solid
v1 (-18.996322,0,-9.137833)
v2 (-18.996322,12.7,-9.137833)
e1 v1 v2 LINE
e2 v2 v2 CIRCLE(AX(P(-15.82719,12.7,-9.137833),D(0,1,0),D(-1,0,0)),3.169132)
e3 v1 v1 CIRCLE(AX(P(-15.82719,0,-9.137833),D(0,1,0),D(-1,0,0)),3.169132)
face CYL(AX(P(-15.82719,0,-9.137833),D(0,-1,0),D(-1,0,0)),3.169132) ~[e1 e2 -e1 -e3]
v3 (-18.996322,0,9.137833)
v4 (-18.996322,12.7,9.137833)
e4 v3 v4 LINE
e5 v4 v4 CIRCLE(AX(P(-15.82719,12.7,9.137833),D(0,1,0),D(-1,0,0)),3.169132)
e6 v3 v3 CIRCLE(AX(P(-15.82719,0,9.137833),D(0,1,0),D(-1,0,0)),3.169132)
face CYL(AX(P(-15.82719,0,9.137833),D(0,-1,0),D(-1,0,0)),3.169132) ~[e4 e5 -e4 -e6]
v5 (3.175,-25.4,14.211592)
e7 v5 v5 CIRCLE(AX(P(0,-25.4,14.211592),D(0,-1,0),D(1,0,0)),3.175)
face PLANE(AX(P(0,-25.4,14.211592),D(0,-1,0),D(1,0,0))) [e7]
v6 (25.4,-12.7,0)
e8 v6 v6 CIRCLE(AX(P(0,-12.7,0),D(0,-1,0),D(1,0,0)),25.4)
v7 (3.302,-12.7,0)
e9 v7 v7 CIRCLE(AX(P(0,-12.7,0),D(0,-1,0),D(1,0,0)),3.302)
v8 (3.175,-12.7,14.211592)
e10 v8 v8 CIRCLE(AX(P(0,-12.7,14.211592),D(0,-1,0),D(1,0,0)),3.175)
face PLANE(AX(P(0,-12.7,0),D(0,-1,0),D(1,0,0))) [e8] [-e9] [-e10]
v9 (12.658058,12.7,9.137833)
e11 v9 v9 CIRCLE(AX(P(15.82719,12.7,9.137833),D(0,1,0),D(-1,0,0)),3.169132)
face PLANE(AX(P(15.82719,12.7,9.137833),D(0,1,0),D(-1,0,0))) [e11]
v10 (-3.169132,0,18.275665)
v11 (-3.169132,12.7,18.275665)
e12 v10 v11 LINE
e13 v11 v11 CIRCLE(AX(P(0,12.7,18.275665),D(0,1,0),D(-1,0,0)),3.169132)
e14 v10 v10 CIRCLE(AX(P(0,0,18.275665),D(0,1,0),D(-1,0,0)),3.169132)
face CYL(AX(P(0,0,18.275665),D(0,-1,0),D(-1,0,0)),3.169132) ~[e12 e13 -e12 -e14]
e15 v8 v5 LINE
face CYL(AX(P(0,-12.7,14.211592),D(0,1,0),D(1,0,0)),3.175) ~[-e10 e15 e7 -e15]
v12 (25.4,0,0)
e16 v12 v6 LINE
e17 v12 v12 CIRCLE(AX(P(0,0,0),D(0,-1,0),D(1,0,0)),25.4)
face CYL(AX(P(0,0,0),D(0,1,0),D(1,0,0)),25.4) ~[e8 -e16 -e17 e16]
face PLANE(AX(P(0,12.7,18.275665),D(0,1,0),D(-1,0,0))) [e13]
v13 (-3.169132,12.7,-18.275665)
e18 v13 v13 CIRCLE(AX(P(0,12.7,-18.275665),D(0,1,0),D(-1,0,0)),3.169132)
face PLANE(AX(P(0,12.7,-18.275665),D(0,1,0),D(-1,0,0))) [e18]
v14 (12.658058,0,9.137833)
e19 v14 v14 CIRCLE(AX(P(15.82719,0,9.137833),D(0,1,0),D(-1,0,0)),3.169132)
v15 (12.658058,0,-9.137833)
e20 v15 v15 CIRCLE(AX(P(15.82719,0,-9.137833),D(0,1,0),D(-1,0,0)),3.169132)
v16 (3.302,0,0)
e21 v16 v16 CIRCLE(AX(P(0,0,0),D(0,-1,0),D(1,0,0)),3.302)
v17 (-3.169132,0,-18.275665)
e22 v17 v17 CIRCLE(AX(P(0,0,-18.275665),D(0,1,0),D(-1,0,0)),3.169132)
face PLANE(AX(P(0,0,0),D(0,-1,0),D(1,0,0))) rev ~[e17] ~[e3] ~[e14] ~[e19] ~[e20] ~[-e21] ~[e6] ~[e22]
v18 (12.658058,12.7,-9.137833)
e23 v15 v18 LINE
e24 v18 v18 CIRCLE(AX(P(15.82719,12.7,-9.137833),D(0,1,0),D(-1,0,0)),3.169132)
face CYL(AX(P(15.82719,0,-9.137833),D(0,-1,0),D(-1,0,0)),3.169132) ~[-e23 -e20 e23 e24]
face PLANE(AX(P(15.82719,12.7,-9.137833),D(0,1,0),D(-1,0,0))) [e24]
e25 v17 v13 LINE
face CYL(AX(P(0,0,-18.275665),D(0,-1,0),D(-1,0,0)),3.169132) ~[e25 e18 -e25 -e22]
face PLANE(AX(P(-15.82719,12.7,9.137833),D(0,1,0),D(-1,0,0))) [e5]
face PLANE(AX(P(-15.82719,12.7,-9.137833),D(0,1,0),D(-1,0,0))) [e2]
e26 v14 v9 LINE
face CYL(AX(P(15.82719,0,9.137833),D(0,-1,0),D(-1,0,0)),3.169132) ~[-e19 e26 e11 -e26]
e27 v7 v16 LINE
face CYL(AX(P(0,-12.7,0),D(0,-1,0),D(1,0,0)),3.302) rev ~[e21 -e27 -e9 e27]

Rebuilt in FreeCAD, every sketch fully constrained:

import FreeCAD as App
import Part
import Sketcher

V = App.Vector
Q = App.Units.Quantity

doc = App.newDocument("Part")
params = doc.addObject("Spreadsheet::Sheet", "Params")
for row, (alias, value) in enumerate([
    ("sketch1_diameter", "2 in"),
    ("pad1_length", "0.5 in"),
    ("sketch2_diameter", "0.26 in"),
    ("pocket1_length", "0.5 in"),
    ("sketch3_diameter", "0.25 in"),
    ("pad2_length", "0.5 in"),
    ("pad3_length", "0.5 in"),
], start=1):
    params.set(f"A{row}", alias)
    params.set(f"B{row}", "=" + value)
    params.setAlias(f"B{row}", alias)

body = doc.addObject("PartDesign::Body", "Body")

# Sketch on XZ plane
sketch1 = doc.addObject("Sketcher::SketchObject", "Sketch")
body.addObject(sketch1)
sketch1.AttachmentSupport = (doc.XZ_Plane, [""])
sketch1.MapMode = "FlatFace"
sketch1.addGeometry(Part.Circle(V(0, 0, 0), V(0, 0, 1), 25.4), False)
sketch1.addConstraint([
    Sketcher.Constraint("Coincident", 0, 3, -1, 1),
    Sketcher.Constraint("Diameter", 0, Q("2 in")),
])
sketch1.setExpression("Constraints[1]", "Params.sketch1_diameter")
pad1 = doc.addObject("PartDesign::Pad", "Pad")
body.addObject(pad1)
pad1.Profile = sketch1
pad1.setExpression("Length", "Params.pad1_length")

# Sketch on XZ plane
sketch2 = doc.addObject("Sketcher::SketchObject", "Sketch001")
body.addObject(sketch2)
sketch2.AttachmentSupport = (doc.XZ_Plane, [""])
sketch2.MapMode = "FlatFace"
sketch2.AttachmentOffset = App.Placement(V(0, 0, 0.5 * 25.4), App.Rotation())
sketch2.addGeometry(Part.Circle(V(0, 0, 0), V(0, 0, 1), 3.302), False)
sketch2.addConstraint([
    Sketcher.Constraint("Coincident", 0, 3, -1, 1),
    Sketcher.Constraint("Diameter", 0, Q("0.26 in")),
])
sketch2.setExpression("Constraints[1]", "Params.sketch2_diameter")
pocket1 = doc.addObject("PartDesign::Pocket", "Pocket")
body.addObject(pocket1)
pocket1.Profile = sketch2
pocket1.setExpression("Length", "Params.pocket1_length")

# Sketch on XZ plane
sketch3 = doc.addObject("Sketcher::SketchObject", "Sketch002")
body.addObject(sketch3)
sketch3.AttachmentSupport = (doc.XZ_Plane, [""])
sketch3.MapMode = "FlatFace"
sketch3.AttachmentOffset = App.Placement(V(0, 0, 0.5 * 25.4), App.Rotation())
sketch3.addGeometry(Part.Circle(V(0, 14.211592, 0), V(0, 0, 1), 3.175), False)
sketch3.addConstraint([
    Sketcher.Constraint("PointOnObject", 0, 3, -2),
    Sketcher.Constraint("Diameter", 0, Q("0.25 in")),
    Sketcher.Constraint("DistanceY", -1, 1, 0, 3, 14.211592),
])
sketch3.setExpression("Constraints[1]", "Params.sketch3_diameter")
pad2 = doc.addObject("PartDesign::Pad", "Pad001")
body.addObject(pad2)
pad2.Profile = sketch3
pad2.setExpression("Length", "Params.pad2_length")

# Sketch on XZ plane
sketch4 = doc.addObject("Sketcher::SketchObject", "Sketch003")
body.addObject(sketch4)
sketch4.AttachmentSupport = (doc.XZ_Plane, [""])
sketch4.MapMode = "FlatFace"
sketch4.addGeometry([
    Part.Circle(V(0, 18.275665, 0), V(0, 0, 1), 3.169132),  # 0
    Part.Circle(V(15.82719, 9.137833, 0), V(0, 0, 1), 3.169132),  # 1
    Part.Circle(V(15.82719, -9.137833, 0), V(0, 0, 1), 3.169132),  # 2
    Part.Circle(V(0, -18.275665, 0), V(0, 0, 1), 3.169132),  # 3
    Part.Circle(V(-15.82719, -9.137833, 0), V(0, 0, 1), 3.169132),  # 4
    Part.Circle(V(-15.82719, 9.137833, 0), V(0, 0, 1), 3.169132),  # 5
], False)
sketch4.addConstraint([
    Sketcher.Constraint("Equal", 0, 1),
    Sketcher.Constraint("Equal", 1, 2),
    Sketcher.Constraint("Equal", 2, 3),
    Sketcher.Constraint("Equal", 3, 4),
    Sketcher.Constraint("Equal", 4, 5),
    Sketcher.Constraint("Symmetric", 0, 3, 3, 3, -1, 1),
    Sketcher.Constraint("Symmetric", 1, 3, 4, 3, -1, 1),
    Sketcher.Constraint("Symmetric", 2, 3, 5, 3, -1, 1),
    Sketcher.Constraint("Symmetric", 2, 3, 4, 3, -2),
    Sketcher.Constraint("PointOnObject", 0, 3, -2),
    Sketcher.Constraint("Diameter", 0, 6.338264),
    Sketcher.Constraint("DistanceY", 2, 3, 0, 3, 27.413498),
    Sketcher.Constraint("DistanceX", -1, 1, 1, 3, 15.82719),
    Sketcher.Constraint("DistanceY", 3, 3, 0, 3, 36.55133),
])
pad3 = doc.addObject("PartDesign::Pad", "Pad002")
body.addObject(pad3)
pad3.Profile = sketch4
pad3.setExpression("Length", "Params.pad3_length")
pad3.Reversed = True

doc.recompute()
